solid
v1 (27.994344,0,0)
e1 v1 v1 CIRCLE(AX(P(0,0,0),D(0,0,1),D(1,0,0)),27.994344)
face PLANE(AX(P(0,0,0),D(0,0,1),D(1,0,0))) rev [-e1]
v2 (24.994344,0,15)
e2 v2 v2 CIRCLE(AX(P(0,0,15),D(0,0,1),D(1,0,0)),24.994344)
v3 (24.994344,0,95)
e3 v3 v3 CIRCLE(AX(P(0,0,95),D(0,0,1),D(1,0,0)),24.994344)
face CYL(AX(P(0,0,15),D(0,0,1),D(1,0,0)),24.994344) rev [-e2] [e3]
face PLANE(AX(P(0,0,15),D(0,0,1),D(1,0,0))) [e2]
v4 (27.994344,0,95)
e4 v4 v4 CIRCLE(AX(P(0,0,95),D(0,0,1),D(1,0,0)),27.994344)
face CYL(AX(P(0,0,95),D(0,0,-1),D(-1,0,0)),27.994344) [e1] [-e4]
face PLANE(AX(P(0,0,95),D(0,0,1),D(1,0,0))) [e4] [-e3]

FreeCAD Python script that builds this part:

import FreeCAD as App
import Part
import Sketcher
from FreeCAD import Vector

doc = App.newDocument("Part")
body = doc.addObject("PartDesign::Body", "Body")

sketch1 = body.newObject("Sketcher::SketchObject", "Sketch")
sketch1.AttachmentSupport = (doc.getObject("XY_Plane"), [""])
sketch1.MapMode = "FlatFace"
sketch1.addGeometry(Part.Circle(Vector(0, 0, 0), Vector(0, 0, 1), 28), False)
sketch1.addConstraint([
    Sketcher.Constraint("Coincident", 0, 3, -1, 1),
    Sketcher.Constraint("Diameter", 0, 55.988688),
])
pad1 = body.newObject("PartDesign::Pad", "Pad")
pad1.Profile = sketch1
pad1.Length = 95

sketch2 = body.newObject("Sketcher::SketchObject", "Sketch001")
sketch2.AttachmentSupport = (doc.getObject("XY_Plane"), [""])
sketch2.MapMode = "FlatFace"
sketch2.AttachmentOffset = App.Placement(Vector(0, 0, 95), App.Rotation())
sketch2.addGeometry(Part.Circle(Vector(0, 0, 0), Vector(0, 0, 1), 25), False)
sketch2.addConstraint([
    Sketcher.Constraint("Coincident", 0, 3, -1, 1),
    Sketcher.Constraint("Diameter", 0, 49.988688),
])
pocket1 = body.newObject("PartDesign::Pocket", "Pocket")
pocket1.Profile = sketch2
pocket1.Length = 80

doc.recompute()
